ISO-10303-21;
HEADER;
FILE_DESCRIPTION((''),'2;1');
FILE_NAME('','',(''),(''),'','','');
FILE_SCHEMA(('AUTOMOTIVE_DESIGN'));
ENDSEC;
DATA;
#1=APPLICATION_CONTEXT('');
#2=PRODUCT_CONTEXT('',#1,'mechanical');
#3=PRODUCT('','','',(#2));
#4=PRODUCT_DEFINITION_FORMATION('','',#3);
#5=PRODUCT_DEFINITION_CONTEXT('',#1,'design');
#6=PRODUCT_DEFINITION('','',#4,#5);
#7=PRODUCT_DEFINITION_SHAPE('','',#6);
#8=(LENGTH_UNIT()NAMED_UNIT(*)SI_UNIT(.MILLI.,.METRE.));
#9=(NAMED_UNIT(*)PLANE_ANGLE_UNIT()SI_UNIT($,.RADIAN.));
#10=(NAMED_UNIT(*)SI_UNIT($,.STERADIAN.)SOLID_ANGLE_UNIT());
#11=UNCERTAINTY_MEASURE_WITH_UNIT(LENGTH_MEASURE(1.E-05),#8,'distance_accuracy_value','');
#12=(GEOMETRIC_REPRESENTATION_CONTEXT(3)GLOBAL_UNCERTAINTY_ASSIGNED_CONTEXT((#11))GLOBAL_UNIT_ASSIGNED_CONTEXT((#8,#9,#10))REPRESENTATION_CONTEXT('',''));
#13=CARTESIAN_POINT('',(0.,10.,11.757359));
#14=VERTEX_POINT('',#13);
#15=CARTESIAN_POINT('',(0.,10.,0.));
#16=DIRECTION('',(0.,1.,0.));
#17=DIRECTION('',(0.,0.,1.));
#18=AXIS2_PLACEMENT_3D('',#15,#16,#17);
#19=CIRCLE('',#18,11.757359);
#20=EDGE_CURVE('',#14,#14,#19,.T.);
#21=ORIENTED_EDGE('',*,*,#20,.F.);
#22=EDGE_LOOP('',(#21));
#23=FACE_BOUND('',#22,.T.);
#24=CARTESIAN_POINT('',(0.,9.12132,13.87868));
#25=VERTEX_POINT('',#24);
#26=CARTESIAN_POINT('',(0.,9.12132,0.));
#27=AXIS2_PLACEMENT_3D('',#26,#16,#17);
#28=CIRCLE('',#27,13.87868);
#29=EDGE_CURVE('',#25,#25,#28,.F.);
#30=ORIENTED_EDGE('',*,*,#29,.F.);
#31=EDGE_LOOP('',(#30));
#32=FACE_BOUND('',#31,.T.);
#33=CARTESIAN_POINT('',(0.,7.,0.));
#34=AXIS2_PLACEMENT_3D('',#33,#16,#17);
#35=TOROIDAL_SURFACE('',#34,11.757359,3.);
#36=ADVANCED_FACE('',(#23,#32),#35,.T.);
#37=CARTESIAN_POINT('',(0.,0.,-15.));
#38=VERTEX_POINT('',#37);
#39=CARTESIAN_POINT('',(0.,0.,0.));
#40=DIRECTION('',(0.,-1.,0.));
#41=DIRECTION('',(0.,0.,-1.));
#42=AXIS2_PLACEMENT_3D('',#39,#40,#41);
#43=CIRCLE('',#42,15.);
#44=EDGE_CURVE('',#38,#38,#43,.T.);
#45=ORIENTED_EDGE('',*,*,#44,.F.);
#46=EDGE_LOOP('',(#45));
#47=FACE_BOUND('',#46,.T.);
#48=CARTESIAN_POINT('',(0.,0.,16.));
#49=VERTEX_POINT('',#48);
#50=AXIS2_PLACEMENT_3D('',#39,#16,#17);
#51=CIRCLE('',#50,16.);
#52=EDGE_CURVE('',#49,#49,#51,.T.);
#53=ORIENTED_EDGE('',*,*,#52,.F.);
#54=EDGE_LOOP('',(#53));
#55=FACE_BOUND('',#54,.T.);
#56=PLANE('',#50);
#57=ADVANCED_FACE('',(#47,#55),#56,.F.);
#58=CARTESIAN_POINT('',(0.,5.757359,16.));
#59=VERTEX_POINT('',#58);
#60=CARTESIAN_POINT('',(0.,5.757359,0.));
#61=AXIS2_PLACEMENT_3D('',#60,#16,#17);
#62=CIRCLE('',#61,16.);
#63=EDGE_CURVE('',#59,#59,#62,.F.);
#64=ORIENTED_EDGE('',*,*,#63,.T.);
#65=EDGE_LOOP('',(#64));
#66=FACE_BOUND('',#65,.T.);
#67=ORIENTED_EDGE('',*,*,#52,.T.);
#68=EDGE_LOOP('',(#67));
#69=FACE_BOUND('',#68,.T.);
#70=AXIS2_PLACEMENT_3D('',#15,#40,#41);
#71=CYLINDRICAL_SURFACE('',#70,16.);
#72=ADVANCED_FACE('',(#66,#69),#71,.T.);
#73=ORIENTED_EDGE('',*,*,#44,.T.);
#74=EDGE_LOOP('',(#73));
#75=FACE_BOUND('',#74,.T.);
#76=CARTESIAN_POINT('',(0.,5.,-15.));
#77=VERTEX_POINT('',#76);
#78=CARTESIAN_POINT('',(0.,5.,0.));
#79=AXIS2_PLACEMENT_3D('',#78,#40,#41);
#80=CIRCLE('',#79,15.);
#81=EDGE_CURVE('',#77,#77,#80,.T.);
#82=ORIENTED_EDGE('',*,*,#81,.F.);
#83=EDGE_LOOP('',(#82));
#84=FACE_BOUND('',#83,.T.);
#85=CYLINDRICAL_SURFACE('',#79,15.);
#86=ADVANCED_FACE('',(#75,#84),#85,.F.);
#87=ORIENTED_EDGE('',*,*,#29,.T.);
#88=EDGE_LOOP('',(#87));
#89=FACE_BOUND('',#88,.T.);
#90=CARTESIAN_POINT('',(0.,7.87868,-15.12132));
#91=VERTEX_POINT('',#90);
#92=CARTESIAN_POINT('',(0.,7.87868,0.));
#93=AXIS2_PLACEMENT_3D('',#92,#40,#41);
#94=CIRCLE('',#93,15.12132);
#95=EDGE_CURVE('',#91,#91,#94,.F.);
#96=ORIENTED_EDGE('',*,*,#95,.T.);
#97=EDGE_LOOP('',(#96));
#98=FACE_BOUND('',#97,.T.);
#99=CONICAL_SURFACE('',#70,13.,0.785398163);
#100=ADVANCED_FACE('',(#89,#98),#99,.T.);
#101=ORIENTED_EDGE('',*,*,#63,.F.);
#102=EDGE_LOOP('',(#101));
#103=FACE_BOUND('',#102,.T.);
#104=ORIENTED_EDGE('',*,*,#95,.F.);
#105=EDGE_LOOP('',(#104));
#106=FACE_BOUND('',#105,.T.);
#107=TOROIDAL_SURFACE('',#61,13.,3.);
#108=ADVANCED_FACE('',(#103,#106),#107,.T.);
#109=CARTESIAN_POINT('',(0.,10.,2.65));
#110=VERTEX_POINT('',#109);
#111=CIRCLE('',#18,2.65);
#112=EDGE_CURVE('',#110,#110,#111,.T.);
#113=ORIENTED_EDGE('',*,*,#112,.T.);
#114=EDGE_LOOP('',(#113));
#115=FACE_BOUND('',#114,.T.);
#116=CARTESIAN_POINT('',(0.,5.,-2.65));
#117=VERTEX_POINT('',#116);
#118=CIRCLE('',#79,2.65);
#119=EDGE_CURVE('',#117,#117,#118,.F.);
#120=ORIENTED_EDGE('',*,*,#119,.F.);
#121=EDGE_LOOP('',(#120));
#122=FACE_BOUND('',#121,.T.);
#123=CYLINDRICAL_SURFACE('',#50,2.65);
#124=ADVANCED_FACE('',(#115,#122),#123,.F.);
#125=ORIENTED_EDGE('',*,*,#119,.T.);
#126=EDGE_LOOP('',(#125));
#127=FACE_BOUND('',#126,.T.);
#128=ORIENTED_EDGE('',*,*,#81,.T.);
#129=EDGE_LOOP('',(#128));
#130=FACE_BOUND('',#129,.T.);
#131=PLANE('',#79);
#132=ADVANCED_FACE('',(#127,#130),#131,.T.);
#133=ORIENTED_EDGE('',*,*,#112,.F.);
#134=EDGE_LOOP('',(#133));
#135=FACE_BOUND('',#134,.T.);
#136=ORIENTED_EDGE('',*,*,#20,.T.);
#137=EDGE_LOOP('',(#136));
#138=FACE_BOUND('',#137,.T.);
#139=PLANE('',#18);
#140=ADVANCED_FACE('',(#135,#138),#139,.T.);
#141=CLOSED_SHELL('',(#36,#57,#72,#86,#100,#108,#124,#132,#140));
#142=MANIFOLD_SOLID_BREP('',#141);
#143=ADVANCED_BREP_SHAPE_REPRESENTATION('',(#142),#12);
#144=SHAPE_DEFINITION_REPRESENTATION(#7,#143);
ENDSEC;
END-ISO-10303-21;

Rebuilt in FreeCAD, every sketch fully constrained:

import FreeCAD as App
import Part
import Sketcher
from FreeCAD import Vector
Q = App.Units.Quantity


def edges_at(feature, points):
    """Names of the edges that pass closest to the given points."""
    edges = feature.Shape.Edges
    near = lambda p: min(range(len(edges)), key=lambda i: edges[i].distToShape(Part.Vertex(*p))[0])
    return sorted({f"Edge{near(p) + 1}" for p in points})

doc = App.newDocument("Part")
params = doc.addObject("Spreadsheet::Sheet", "Params")
for row, (alias, value) in enumerate([
    ("sketch1_diameter", "32 mm"),
    ("pad1_length", "10 mm"),
    ("chamfer_size", "3 mm"),
    ("fillet_radius", "3 mm"),
    ("sketch2_diameter", "5.3 mm"),
    ("pocket1_length", "10 mm"),
    ("sketch3_diameter", "30 mm"),
    ("pocket2_length", "5 mm"),
], start=1):
    params.set(f"A{row}", alias)
    params.set(f"B{row}", "=" + value)
    params.setAlias(f"B{row}", alias)

body = doc.addObject("PartDesign::Body", "Body")

# Sketch on XZ plane
sketch1 = doc.addObject("Sketcher::SketchObject", "Sketch")
body.addObject(sketch1)
sketch1.AttachmentSupport = (doc.XZ_Plane, [""])
sketch1.MapMode = "FlatFace"
sketch1.addGeometry(Part.Circle(Vector(0, 0, 0), Vector(0, 0, 1), 16), False)
sketch1.addConstraint([
    Sketcher.Constraint("Coincident", 0, 3, -1, 1),
    Sketcher.Constraint("Diameter", 0, Q("32 mm")),
])
sketch1.setExpression("Constraints[1]", "Params.sketch1_diameter")
pad1 = doc.addObject("PartDesign::Pad", "Pad")
body.addObject(pad1)
pad1.Profile = sketch1
pad1.setExpression("Length", "Params.pad1_length")
pad1.Reversed = True
doc.recompute()

chamfer = doc.addObject("PartDesign::Chamfer", "Chamfer")
body.addObject(chamfer)
chamfer.Base = (pad1, edges_at(pad1, [(0, 10, -16)]))
chamfer.setExpression("Size", "Params.chamfer_size")
doc.recompute()

fillet = doc.addObject("PartDesign::Fillet", "Fillet")
body.addObject(fillet)
fillet.Base = (chamfer, edges_at(chamfer, [(0, 10, -13), (0, 7, -16)]))
fillet.setExpression("Radius", "Params.fillet_radius")

# Sketch on XZ plane
sketch2 = doc.addObject("Sketcher::SketchObject", "Sketch001")
body.addObject(sketch2)
sketch2.AttachmentSupport = (doc.XZ_Plane, [""])
sketch2.MapMode = "FlatFace"
sketch2.AttachmentOffset = App.Placement(Vector(0, 0, -10), App.Rotation())
sketch2.addGeometry(Part.Circle(Vector(0, 0, 0), Vector(0, 0, 1), 2.6), False)
sketch2.addConstraint([
    Sketcher.Constraint("Coincident", 0, 3, -1, 1),
    Sketcher.Constraint("Diameter", 0, Q("5.3 mm")),
])
sketch2.setExpression("Constraints[1]", "Params.sketch2_diameter")
pocket1 = doc.addObject("PartDesign::Pocket", "Pocket")
body.addObject(pocket1)
pocket1.Profile = sketch2
pocket1.setExpression("Length", "Params.pocket1_length")
pocket1.Reversed = True

# Sketch on XZ plane
sketch3 = doc.addObject("Sketcher::SketchObject", "Sketch002")
body.addObject(sketch3)
sketch3.AttachmentSupport = (doc.XZ_Plane, [""])
sketch3.MapMode = "FlatFace"
sketch3.addGeometry(Part.Circle(Vector(0, 0, 0), Vector(0, 0, 1), 15), False)
sketch3.addConstraint([
    Sketcher.Constraint("Coincident", 0, 3, -1, 1),
    Sketcher.Constraint("Diameter", 0, Q("30 mm")),
])
sketch3.setExpression("Constraints[1]", "Params.sketch3_diameter")
pocket2 = doc.addObject("PartDesign::Pocket", "Pocket001")
body.addObject(pocket2)
pocket2.Profile = sketch3
pocket2.setExpression("Length", "Params.pocket2_length")

doc.recompute()
